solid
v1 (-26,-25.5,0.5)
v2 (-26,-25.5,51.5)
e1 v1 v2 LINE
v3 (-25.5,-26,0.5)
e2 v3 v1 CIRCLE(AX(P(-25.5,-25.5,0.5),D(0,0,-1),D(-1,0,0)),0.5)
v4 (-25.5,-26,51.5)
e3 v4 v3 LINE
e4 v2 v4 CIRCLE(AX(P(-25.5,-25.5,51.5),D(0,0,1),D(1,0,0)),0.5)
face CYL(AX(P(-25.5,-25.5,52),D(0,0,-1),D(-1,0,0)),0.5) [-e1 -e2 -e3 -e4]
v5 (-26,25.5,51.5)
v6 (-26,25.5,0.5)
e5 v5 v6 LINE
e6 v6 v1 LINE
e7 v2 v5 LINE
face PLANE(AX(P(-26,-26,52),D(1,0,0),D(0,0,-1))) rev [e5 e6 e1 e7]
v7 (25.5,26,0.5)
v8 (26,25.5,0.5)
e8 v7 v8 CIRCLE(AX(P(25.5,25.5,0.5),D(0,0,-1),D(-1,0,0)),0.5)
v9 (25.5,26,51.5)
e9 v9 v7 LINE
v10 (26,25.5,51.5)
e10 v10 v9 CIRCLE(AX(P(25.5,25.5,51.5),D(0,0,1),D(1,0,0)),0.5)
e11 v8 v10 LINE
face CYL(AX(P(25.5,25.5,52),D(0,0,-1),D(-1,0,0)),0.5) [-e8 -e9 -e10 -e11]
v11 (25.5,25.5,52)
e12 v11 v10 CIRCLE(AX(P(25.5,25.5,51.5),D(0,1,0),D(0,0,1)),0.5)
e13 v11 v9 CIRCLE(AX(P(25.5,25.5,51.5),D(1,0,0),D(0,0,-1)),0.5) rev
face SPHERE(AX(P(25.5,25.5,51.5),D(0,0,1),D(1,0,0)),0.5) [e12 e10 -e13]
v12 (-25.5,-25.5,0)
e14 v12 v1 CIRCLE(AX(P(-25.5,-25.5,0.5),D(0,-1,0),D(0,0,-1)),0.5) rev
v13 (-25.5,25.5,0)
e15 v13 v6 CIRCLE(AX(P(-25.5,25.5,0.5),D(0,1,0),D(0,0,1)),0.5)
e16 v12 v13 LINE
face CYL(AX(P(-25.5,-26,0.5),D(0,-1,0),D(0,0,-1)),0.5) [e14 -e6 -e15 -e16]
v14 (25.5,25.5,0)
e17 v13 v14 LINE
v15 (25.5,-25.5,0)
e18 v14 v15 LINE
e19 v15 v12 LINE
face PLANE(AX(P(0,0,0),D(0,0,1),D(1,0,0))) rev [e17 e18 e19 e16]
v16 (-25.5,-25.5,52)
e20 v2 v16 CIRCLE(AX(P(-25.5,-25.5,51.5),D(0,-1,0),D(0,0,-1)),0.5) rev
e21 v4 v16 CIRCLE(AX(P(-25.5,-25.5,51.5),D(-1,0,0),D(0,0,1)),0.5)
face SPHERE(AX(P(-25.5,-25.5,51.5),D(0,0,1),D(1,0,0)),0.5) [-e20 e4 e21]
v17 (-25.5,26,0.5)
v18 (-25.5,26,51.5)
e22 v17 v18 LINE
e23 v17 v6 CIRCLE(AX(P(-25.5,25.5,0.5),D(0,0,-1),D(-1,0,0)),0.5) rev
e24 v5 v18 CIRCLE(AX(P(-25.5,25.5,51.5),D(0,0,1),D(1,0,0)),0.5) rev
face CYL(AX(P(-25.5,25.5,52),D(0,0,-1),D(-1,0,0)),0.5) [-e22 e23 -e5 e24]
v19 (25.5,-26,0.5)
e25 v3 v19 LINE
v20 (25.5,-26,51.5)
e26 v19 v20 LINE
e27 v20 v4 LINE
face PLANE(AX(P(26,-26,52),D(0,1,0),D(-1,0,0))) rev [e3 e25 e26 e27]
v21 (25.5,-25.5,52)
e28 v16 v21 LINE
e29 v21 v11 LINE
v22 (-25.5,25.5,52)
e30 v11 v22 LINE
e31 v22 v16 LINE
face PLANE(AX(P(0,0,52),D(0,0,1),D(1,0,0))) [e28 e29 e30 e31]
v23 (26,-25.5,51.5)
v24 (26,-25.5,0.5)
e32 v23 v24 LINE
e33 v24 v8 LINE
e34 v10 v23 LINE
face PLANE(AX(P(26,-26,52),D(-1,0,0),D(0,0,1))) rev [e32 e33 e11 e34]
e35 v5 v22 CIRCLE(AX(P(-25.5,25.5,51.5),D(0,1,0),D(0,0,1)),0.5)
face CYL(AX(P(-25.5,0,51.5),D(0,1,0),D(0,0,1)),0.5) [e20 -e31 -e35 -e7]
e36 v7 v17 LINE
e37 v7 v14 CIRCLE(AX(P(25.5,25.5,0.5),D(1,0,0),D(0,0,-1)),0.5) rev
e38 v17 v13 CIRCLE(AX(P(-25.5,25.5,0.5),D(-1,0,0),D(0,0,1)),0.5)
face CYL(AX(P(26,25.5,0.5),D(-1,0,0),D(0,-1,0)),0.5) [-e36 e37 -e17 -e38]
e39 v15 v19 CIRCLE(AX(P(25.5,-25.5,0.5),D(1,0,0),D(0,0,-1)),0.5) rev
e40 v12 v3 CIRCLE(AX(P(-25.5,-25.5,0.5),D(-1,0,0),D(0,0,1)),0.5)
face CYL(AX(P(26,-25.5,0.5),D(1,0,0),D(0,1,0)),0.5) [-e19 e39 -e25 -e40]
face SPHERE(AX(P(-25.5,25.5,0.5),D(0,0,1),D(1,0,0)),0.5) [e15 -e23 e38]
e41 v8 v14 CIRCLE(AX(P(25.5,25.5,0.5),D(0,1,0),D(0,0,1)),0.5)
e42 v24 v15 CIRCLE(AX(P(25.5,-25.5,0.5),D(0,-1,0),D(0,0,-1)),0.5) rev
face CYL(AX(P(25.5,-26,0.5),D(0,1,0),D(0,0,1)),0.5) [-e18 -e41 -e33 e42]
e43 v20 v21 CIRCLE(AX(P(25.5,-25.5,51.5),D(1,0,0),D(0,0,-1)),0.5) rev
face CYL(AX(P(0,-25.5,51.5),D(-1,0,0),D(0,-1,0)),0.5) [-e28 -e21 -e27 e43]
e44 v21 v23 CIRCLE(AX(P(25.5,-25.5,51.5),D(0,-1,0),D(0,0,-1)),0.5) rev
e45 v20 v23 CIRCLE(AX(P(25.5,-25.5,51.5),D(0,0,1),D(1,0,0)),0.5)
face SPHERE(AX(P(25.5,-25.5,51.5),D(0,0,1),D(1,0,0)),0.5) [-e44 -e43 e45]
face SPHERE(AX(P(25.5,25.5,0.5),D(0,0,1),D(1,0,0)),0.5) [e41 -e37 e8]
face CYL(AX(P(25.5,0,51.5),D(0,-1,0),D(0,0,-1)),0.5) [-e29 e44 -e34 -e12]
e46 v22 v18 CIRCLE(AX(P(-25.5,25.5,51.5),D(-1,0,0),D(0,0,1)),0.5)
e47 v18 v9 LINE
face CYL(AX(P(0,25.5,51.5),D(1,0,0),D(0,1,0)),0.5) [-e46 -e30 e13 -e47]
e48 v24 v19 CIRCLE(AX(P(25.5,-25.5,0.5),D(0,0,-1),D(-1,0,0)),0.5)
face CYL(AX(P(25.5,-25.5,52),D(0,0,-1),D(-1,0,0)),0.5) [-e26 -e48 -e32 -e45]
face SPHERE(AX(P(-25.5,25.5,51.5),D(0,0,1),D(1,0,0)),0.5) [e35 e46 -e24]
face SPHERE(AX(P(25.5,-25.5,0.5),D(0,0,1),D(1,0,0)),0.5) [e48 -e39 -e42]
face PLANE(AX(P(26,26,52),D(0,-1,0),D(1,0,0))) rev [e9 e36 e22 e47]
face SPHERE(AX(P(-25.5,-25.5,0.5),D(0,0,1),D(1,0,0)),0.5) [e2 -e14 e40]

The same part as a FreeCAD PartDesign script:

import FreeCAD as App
import Part
import Sketcher

V = App.Vector
Q = App.Units.Quantity

doc = App.newDocument("Part")
body = doc.addObject("PartDesign::Body", "Body")

sketch1 = body.newObject("Sketcher::SketchObject", "Sketch")
sketch1.AttachmentSupport = (doc.getObject("XY_Plane"), [""])
sketch1.MapMode = "FlatFace"
sketch1.addGeometry([
    Part.LineSegment(V(-26, 26, 0), V(-26, -26, 0)),
    Part.LineSegment(V(-26, -26, 0), V(26, -26, 0)),
    Part.LineSegment(V(26, -26, 0), V(26, 26, 0)),
    Part.LineSegment(V(26, 26, 0), V(-26, 26, 0)),
], False)
sketch1.addConstraint([
    Sketcher.Constraint("Coincident", 0, 2, 1, 1),
    Sketcher.Constraint("Coincident", 1, 2, 2, 1),
    Sketcher.Constraint("Coincident", 2, 2, 3, 1),
    Sketcher.Constraint("Coincident", 3, 2, 0, 1),
    Sketcher.Constraint("Vertical", 0),
    Sketcher.Constraint("Horizontal", 1),
    Sketcher.Constraint("Vertical", 2),
    Sketcher.Constraint("Horizontal", 3),
    Sketcher.Constraint("Symmetric", 0, 2, 2, 2, -1, 1),
    Sketcher.Constraint("Equal", 3, 0),
    Sketcher.Constraint("DistanceX", 1, 1, 1, 2, Q("52 mm")),
])
pad1 = body.newObject("PartDesign::Pad", "Pad")
pad1.Profile = sketch1
pad1.Length = 52
doc.recompute()

fillet = body.newObject("PartDesign::Fillet", "Fillet")
fillet.Base = (pad1, ["Edge1"])
fillet.UseAllEdges = True
fillet.Radius = 0.5

doc.recompute()
